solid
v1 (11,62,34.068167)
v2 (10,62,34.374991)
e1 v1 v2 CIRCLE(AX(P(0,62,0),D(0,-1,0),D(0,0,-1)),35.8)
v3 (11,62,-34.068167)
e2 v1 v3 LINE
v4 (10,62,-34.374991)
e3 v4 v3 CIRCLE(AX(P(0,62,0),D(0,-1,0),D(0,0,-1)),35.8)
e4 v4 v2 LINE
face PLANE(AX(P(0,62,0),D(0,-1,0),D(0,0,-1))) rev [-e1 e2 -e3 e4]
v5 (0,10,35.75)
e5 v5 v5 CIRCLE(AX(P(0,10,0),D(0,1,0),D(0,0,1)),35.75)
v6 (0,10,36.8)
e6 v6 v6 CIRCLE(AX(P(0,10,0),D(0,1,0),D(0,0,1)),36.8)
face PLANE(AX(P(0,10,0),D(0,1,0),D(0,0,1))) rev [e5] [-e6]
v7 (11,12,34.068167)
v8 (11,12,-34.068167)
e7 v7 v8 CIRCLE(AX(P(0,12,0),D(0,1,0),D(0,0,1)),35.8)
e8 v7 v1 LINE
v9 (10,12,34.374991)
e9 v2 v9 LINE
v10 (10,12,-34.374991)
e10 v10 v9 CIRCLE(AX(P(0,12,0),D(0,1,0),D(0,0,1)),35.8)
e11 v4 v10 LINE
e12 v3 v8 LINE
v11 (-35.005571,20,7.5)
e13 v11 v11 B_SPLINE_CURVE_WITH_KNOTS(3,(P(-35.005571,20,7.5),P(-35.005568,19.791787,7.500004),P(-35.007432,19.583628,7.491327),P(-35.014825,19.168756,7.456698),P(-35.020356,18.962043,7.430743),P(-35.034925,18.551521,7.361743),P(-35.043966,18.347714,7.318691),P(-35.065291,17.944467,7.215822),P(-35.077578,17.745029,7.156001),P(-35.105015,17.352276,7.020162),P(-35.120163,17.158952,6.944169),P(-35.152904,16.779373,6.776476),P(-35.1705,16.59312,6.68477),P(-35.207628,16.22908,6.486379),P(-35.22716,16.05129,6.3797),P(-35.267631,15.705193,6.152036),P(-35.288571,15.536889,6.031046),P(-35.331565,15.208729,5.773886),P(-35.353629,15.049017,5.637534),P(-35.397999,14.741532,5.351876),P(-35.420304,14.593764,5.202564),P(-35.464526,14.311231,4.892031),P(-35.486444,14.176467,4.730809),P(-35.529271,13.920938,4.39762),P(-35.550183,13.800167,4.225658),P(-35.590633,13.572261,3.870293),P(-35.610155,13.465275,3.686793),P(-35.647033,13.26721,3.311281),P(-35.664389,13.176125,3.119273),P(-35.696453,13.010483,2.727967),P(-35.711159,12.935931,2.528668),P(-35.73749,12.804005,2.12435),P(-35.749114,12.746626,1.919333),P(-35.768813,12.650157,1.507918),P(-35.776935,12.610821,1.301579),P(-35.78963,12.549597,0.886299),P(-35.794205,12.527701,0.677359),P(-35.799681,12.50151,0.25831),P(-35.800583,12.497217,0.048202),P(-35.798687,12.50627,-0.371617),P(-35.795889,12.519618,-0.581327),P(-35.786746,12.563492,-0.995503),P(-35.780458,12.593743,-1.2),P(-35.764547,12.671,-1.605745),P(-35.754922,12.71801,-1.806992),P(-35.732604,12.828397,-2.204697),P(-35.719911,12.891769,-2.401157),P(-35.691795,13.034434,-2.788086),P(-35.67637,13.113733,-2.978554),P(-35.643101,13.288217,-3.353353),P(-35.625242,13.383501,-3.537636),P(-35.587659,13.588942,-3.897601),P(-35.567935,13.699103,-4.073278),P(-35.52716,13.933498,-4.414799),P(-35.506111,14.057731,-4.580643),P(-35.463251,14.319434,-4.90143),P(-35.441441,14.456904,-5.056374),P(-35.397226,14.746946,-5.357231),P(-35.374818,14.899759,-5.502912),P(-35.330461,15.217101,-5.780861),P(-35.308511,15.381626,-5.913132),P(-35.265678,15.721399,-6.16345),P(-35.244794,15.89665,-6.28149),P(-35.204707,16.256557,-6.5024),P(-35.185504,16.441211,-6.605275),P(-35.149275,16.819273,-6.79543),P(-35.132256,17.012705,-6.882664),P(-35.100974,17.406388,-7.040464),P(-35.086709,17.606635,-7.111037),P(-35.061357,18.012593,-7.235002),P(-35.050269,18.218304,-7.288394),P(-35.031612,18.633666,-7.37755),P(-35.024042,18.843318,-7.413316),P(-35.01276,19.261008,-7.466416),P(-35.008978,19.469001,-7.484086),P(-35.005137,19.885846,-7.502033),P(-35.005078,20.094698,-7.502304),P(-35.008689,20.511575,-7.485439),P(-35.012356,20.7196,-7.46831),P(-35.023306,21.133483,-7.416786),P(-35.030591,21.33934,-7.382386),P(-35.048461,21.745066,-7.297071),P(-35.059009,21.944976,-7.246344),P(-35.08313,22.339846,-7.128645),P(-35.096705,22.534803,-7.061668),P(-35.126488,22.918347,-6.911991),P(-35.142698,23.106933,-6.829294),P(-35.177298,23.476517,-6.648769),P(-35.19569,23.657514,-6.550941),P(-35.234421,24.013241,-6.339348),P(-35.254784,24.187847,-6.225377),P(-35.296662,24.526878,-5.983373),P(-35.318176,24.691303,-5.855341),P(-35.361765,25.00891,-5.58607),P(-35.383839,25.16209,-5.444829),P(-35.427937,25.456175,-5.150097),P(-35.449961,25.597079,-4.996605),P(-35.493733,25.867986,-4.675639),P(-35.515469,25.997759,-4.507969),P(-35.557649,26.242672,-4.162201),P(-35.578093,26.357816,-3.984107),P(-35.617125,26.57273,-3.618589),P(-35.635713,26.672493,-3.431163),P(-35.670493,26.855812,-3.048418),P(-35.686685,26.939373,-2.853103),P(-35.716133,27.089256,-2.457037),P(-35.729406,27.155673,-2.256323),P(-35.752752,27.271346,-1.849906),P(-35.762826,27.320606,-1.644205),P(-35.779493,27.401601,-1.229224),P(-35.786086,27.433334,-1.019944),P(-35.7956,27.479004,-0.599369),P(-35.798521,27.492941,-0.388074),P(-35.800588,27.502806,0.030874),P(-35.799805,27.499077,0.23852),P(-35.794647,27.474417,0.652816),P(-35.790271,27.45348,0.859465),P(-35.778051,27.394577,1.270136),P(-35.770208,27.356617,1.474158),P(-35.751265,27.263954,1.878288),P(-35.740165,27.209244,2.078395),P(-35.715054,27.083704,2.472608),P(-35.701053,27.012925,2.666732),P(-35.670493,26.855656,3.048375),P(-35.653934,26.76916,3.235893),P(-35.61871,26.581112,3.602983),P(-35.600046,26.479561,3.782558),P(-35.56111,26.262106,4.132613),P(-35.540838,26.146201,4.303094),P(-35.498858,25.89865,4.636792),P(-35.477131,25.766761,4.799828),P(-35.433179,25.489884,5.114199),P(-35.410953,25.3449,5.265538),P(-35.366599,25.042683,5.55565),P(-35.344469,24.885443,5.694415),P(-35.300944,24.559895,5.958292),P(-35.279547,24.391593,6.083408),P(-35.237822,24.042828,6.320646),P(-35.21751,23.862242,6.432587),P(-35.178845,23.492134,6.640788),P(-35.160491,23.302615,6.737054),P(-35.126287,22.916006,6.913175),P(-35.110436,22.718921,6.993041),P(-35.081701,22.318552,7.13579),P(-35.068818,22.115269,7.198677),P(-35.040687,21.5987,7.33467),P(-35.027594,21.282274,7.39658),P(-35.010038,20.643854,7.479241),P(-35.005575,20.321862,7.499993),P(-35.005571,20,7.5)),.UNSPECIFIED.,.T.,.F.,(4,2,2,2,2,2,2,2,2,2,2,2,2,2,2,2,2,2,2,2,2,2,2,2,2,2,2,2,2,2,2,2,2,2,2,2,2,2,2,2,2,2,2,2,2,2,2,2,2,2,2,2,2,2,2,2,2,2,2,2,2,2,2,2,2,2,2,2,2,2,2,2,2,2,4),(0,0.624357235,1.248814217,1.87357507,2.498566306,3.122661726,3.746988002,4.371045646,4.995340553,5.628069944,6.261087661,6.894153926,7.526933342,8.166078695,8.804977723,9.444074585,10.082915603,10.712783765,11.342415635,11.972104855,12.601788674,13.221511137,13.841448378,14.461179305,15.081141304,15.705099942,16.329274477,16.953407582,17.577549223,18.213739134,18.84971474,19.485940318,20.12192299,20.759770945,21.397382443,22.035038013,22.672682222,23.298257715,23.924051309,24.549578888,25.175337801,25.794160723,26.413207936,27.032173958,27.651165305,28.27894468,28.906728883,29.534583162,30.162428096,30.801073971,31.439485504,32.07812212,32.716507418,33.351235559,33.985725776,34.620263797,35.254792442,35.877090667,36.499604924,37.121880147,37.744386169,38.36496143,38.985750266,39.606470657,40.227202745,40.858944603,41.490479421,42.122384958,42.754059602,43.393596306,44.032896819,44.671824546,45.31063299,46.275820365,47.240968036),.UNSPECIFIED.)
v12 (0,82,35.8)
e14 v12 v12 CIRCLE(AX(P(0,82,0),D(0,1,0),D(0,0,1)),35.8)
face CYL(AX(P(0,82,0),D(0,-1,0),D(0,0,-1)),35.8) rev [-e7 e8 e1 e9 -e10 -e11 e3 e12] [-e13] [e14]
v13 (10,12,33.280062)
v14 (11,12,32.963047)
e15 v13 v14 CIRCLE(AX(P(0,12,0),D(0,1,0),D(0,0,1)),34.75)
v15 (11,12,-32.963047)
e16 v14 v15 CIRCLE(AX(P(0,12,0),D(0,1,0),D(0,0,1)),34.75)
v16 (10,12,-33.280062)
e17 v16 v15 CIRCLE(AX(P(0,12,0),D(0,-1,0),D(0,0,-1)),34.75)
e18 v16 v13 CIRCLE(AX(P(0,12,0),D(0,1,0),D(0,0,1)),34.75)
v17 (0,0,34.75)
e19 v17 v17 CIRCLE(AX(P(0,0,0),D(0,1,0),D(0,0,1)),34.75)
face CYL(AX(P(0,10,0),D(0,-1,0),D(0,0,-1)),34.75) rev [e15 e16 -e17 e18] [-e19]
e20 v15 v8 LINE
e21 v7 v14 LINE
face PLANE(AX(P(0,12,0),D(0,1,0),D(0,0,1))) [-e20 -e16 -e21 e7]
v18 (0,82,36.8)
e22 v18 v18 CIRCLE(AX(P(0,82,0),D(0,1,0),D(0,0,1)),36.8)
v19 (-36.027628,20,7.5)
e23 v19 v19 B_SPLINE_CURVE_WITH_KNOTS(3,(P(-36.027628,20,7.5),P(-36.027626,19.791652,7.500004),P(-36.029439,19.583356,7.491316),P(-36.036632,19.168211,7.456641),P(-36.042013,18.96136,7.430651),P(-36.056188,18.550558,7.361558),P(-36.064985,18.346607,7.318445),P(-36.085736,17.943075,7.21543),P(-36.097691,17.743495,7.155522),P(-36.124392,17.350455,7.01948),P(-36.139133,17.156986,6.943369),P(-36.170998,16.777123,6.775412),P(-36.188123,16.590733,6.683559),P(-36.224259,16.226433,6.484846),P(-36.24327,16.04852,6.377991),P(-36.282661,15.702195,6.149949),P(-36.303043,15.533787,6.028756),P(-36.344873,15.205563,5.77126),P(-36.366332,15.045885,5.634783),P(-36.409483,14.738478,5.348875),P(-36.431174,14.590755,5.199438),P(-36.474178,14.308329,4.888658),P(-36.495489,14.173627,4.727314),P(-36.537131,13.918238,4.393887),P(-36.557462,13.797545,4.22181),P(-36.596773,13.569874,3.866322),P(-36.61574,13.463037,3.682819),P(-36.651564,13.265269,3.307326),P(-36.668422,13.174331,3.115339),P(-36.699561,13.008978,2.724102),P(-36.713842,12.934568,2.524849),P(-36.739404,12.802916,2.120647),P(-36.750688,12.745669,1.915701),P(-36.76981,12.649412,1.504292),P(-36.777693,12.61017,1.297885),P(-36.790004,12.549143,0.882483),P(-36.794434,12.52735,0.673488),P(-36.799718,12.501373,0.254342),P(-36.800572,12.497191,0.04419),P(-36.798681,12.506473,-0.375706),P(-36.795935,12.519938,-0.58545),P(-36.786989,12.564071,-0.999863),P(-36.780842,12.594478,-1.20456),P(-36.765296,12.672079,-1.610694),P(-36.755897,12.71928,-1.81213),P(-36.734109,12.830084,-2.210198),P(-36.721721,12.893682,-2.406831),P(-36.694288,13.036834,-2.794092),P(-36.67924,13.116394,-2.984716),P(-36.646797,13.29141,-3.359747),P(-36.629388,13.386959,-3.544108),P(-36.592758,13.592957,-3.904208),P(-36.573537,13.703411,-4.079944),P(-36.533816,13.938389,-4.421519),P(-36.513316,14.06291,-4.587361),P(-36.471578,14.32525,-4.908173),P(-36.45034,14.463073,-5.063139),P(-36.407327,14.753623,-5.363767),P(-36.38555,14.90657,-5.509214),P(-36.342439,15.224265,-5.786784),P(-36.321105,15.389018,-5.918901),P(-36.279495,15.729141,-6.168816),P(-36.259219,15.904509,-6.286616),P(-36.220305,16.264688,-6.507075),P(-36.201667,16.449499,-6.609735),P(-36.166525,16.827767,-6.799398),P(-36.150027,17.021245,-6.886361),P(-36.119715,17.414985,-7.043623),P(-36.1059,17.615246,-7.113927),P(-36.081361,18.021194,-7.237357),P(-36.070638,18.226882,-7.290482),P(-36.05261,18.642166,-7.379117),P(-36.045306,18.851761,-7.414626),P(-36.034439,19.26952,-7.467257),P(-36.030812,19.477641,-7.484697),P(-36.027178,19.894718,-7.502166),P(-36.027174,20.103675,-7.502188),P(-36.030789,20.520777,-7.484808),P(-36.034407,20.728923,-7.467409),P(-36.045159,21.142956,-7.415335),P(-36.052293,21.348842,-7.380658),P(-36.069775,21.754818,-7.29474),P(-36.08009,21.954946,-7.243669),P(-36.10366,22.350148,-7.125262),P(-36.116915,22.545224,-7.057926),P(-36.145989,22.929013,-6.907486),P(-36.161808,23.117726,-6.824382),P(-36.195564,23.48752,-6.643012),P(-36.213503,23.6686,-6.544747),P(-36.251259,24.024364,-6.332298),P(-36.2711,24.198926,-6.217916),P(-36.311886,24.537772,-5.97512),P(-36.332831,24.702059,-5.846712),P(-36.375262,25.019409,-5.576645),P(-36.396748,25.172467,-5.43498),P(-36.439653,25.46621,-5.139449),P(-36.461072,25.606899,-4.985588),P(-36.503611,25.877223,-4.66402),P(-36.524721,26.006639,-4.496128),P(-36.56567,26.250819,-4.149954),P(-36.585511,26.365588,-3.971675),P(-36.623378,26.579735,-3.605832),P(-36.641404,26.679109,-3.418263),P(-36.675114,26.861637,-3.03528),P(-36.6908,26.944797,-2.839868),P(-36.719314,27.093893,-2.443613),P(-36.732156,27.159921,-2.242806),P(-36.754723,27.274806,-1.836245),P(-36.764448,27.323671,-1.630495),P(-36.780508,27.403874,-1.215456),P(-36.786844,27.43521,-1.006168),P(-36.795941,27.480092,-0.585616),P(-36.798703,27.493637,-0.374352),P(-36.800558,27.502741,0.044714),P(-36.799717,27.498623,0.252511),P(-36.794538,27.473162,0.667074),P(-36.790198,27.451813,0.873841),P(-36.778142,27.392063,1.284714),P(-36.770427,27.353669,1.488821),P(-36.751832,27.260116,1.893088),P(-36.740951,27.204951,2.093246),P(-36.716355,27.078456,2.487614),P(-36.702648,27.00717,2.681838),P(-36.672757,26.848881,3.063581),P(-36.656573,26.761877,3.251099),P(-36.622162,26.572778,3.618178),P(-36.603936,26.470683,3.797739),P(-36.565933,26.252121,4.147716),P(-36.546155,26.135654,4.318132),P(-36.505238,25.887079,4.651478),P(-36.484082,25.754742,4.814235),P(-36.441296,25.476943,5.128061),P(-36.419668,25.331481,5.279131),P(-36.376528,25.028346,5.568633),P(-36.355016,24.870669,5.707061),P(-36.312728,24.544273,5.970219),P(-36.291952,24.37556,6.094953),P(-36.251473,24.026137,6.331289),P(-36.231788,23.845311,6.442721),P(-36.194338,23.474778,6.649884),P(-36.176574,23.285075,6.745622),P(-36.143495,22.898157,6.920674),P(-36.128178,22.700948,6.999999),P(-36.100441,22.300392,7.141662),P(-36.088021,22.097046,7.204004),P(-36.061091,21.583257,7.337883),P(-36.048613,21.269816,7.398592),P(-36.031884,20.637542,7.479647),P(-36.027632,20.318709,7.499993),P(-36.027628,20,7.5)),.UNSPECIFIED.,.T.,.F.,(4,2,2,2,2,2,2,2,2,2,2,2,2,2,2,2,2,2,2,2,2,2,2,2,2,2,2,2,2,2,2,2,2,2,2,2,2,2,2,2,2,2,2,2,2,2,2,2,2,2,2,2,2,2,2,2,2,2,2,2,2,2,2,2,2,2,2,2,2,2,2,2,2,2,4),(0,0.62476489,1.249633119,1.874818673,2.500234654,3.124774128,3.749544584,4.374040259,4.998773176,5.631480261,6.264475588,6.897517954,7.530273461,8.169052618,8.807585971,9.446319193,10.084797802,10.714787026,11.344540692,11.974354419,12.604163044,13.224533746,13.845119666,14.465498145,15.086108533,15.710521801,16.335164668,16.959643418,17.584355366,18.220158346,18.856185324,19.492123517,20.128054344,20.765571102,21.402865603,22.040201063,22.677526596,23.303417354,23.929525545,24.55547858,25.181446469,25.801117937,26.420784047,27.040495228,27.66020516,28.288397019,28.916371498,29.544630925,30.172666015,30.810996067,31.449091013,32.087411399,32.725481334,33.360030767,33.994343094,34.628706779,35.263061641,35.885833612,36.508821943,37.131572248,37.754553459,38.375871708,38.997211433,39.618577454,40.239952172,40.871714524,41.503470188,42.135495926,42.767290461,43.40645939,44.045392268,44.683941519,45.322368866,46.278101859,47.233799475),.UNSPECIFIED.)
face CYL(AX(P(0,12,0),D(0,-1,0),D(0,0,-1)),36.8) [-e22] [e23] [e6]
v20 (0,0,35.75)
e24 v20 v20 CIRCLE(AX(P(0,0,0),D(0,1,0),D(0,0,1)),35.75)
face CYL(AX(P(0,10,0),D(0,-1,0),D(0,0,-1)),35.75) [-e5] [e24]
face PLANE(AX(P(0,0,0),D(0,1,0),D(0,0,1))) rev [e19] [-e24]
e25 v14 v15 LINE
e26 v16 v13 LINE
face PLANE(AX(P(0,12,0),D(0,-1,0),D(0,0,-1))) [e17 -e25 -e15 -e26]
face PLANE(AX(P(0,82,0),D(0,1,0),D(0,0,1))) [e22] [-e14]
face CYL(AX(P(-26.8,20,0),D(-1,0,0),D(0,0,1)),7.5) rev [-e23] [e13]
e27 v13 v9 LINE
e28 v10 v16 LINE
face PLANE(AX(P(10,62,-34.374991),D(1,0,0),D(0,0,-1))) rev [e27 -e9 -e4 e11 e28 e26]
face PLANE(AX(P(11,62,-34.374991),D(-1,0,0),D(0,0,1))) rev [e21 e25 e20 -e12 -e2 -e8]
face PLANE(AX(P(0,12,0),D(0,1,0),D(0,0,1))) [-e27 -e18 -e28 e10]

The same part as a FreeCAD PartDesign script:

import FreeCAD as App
import Part
import Sketcher

V = App.Vector

doc = App.newDocument("Part")
params = doc.addObject("Spreadsheet::Sheet", "Params")
for row, (alias, value) in enumerate([
    ("sketch1_diameter", "71.5 mm"),
    ("sketch1_diameter2", "69.5 mm"),
    ("pad1_length", "10 mm"),
    ("sketch2_diameter", "73.6 mm"),
    ("sketch2_diameter2", "69.5 mm"),
    ("pad2_length", "2 mm"),
    ("sketch3_diameter", "73.6 mm"),
    ("sketch3_diameter2", "71.6 mm"),
    ("pad3_length", "70 mm"),
    ("sketch4_width", "1 mm"),
    ("pad4_length", "50 mm"),
    ("sketch5_diameter", "15 mm"),
    ("pocket1_length", "10 mm"),
], start=1):
    params.set(f"A{row}", alias)
    params.set(f"B{row}", "=" + value)
    params.setAlias(f"B{row}", alias)

body = doc.addObject("PartDesign::Body", "Body")

sketch1 = body.newObject("Sketcher::SketchObject", "Sketch")
sketch1.AttachmentSupport = (doc.getObject("XZ_Plane"), [""])
sketch1.MapMode = "FlatFace"
sketch1.addGeometry(Part.Circle(V(0, 0, 0), V(0, 0, 1), 35.75), False)
sketch1.addGeometry(Part.Circle(V(0, 0, 0), V(0, 0, 1), 34.75), False)
sketch1.addConstraint(Sketcher.Constraint("Coincident", 0, 3, -1, 1))
sketch1.addConstraint(Sketcher.Constraint("Coincident", 1, 3, -1, 1))
sketch1.addConstraint(Sketcher.Constraint("Diameter", 0, 71.5))
sketch1.addConstraint(Sketcher.Constraint("Diameter", 1, 69.5))
sketch1.setExpression("Constraints[2]", "Params.sketch1_diameter")
sketch1.setExpression("Constraints[3]", "Params.sketch1_diameter2")
pad1 = body.newObject("PartDesign::Pad", "Pad")
pad1.Profile = sketch1
pad1.setExpression("Length", "Params.pad1_length")
pad1.Reversed = True

sketch2 = body.newObject("Sketcher::SketchObject", "Sketch001")
sketch2.AttachmentSupport = (doc.getObject("XZ_Plane"), [""])
sketch2.MapMode = "FlatFace"
sketch2.AttachmentOffset = App.Placement(V(0, 0, -10), App.Rotation())
sketch2.addGeometry(Part.Circle(V(0, 0, 0), V(0, 0, 1), 36.8), False)
sketch2.addGeometry(Part.Circle(V(0, 0, 0), V(0, 0, 1), 34.75), False)
sketch2.addConstraint(Sketcher.Constraint("Coincident", 0, 3, -1, 1))
sketch2.addConstraint(Sketcher.Constraint("Coincident", 1, 3, -1, 1))
sketch2.addConstraint(Sketcher.Constraint("Diameter", 0, 73.6))
sketch2.addConstraint(Sketcher.Constraint("Diameter", 1, 69.5))
sketch2.setExpression("Constraints[2]", "Params.sketch2_diameter")
sketch2.setExpression("Constraints[3]", "Params.sketch2_diameter2")
pad2 = body.newObject("PartDesign::Pad", "Pad001")
pad2.Profile = sketch2
pad2.setExpression("Length", "Params.pad2_length")
pad2.Reversed = True

sketch3 = body.newObject("Sketcher::SketchObject", "Sketch002")
sketch3.AttachmentSupport = (doc.getObject("XZ_Plane"), [""])
sketch3.MapMode = "FlatFace"
sketch3.AttachmentOffset = App.Placement(V(0, 0, -12), App.Rotation())
sketch3.addGeometry(Part.Circle(V(0, 0, 0), V(0, 0, 1), 36.8), False)
sketch3.addGeometry(Part.Circle(V(0, 0, 0), V(0, 0, 1), 35.8), False)
sketch3.addConstraint(Sketcher.Constraint("Coincident", 0, 3, -1, 1))
sketch3.addConstraint(Sketcher.Constraint("Coincident", 1, 3, -1, 1))
sketch3.addConstraint(Sketcher.Constraint("Diameter", 0, 73.6))
sketch3.addConstraint(Sketcher.Constraint("Diameter", 1, 71.6))
sketch3.setExpression("Constraints[2]", "Params.sketch3_diameter")
sketch3.setExpression("Constraints[3]", "Params.sketch3_diameter2")
pad3 = body.newObject("PartDesign::Pad", "Pad002")
pad3.Profile = sketch3
pad3.setExpression("Length", "Params.pad3_length")
pad3.Reversed = True

sketch4 = body.newObject("Sketcher::SketchObject", "Sketch003")
sketch4.AttachmentSupport = (doc.getObject("XZ_Plane"), [""])
sketch4.MapMode = "FlatFace"
sketch4.AttachmentOffset = App.Placement(V(0, 0, -12), App.Rotation())
sketch4.addGeometry(Part.LineSegment(V(10, -34.374991, 0), V(10, 34.374991, 0)), False)
sketch4.addGeometry(Part.LineSegment(V(10, 34.374991, 0), V(11, 34.374991, 0)), False)
sketch4.addGeometry(Part.LineSegment(V(11, 34.374991, 0), V(11, -34.374991, 0)), False)
sketch4.addGeometry(Part.LineSegment(V(11, -34.374991, 0), V(10, -34.374991, 0)), False)
sketch4.addConstraint(Sketcher.Constraint("Coincident", 0, 2, 1, 1))
sketch4.addConstraint(Sketcher.Constraint("Coincident", 1, 2, 2, 1))
sketch4.addConstraint(Sketcher.Constraint("Coincident", 2, 2, 3, 1))
sketch4.addConstraint(Sketcher.Constraint("Coincident", 3, 2, 0, 1))
sketch4.addConstraint(Sketcher.Constraint("Vertical", 0))
sketch4.addConstraint(Sketcher.Constraint("Horizontal", 1))
sketch4.addConstraint(Sketcher.Constraint("Vertical", 2))
sketch4.addConstraint(Sketcher.Constraint("Horizontal", 3))
sketch4.addConstraint(Sketcher.Constraint("DistanceX", 1, 1, 1, 2, 1.0))
sketch4.addConstraint(Sketcher.Constraint("DistanceX", -1, 1, 0, 2, 10.0))
sketch4.addConstraint(Sketcher.Constraint("DistanceY", 0, 1, 0, 2, 68.749982))
sketch4.addConstraint(Sketcher.Constraint("DistanceY", -1, 1, 0, 2, 34.374991))
sketch4.setExpression("Constraints[8]", "Params.sketch4_width")
pad4 = body.newObject("PartDesign::Pad", "Pad003")
pad4.Profile = sketch4
pad4.setExpression("Length", "Params.pad4_length")
pad4.Reversed = True

sketch5 = body.newObject("Sketcher::SketchObject", "Sketch004")
sketch5.AttachmentSupport = (doc.getObject("YZ_Plane"), [""])
sketch5.MapMode = "FlatFace"
sketch5.AttachmentOffset = App.Placement(V(0, 0, -36.8), App.Rotation())
sketch5.addGeometry(Part.Circle(V(20, 0, 0), V(0, 0, 1), 7.5), False)
sketch5.addConstraint(Sketcher.Constraint("PointOnObject", 0, 3, -1))
sketch5.addConstraint(Sketcher.Constraint("Diameter", 0, 15.0))
sketch5.addConstraint(Sketcher.Constraint("DistanceX", -1, 1, 0, 3, 20.0))
sketch5.setExpression("Constraints[1]", "Params.sketch5_diameter")
pocket1 = body.newObject("PartDesign::Pocket", "Pocket")
pocket1.Profile = sketch5
pocket1.setExpression("Length", "Params.pocket1_length")
pocket1.Reversed = True

doc.recompute()
